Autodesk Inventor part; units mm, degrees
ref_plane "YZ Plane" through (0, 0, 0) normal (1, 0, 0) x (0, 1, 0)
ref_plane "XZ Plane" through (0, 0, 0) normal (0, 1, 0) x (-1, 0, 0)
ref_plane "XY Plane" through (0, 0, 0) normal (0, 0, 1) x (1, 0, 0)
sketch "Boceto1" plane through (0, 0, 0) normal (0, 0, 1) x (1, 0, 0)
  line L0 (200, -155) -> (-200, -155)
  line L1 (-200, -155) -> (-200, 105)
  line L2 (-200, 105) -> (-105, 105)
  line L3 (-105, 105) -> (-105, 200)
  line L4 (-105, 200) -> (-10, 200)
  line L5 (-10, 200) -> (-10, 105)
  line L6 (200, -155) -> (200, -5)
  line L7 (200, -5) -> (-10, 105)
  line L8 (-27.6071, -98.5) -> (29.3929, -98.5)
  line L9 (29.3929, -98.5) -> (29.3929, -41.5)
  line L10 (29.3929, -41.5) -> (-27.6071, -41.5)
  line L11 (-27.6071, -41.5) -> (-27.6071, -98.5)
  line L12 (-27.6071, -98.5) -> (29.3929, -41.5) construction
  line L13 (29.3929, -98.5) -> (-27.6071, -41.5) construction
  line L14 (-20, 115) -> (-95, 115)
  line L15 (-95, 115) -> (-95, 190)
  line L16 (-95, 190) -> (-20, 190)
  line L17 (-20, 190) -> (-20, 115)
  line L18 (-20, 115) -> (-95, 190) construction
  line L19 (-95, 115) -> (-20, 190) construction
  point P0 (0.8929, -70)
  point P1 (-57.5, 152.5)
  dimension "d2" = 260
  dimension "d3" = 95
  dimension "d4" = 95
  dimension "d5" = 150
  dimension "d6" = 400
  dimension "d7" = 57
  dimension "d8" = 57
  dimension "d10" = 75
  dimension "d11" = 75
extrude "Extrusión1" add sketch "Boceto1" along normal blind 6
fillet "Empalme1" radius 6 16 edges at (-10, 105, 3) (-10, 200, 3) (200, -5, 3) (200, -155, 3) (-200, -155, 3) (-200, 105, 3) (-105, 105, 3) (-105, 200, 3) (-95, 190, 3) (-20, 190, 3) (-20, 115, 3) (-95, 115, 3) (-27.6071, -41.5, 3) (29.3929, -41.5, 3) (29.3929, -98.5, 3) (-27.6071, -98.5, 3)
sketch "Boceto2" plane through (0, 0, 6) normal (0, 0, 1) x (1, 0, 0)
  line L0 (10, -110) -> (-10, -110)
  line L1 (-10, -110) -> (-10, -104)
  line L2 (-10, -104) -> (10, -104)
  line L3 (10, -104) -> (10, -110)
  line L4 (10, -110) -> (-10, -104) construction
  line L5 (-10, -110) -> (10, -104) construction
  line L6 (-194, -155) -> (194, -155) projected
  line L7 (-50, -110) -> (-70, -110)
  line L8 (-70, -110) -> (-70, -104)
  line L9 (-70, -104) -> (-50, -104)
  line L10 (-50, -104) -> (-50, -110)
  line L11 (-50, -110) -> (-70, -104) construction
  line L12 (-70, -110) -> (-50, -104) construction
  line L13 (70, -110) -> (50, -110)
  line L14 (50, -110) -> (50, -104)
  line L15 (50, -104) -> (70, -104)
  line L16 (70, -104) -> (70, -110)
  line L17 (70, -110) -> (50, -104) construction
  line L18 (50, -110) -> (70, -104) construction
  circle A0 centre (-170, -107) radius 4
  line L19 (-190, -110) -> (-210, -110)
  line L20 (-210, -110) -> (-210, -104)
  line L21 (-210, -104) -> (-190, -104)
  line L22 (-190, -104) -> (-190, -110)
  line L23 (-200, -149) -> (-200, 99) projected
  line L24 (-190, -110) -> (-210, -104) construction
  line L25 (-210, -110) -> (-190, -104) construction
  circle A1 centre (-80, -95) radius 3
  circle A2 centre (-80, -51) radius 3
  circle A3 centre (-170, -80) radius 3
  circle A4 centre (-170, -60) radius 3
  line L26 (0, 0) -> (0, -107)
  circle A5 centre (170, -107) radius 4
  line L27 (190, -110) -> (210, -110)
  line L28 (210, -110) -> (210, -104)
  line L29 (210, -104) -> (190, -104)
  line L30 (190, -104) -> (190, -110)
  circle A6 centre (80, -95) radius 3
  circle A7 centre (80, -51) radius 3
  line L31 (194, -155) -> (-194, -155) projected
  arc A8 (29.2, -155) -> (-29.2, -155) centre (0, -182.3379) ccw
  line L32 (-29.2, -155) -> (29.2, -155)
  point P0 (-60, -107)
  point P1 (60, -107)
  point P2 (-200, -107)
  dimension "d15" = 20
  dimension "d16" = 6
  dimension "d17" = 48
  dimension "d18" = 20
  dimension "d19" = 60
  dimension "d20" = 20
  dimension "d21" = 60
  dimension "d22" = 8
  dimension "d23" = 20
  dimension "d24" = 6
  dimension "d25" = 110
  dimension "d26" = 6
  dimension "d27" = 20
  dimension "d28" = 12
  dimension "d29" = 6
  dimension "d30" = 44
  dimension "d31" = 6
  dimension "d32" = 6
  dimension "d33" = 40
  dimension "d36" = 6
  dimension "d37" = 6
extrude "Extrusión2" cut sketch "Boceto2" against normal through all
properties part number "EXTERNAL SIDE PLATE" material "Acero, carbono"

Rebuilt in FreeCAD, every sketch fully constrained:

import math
import FreeCAD as App
import Part
import Sketcher
from FreeCAD import Vector
Q = App.Units.Quantity


def edges_at(feature, points):
    """Names of the edges that pass closest to the given points."""
    edges = feature.Shape.Edges
    near = lambda p: min(range(len(edges)), key=lambda i: edges[i].distToShape(Part.Vertex(*p))[0])
    return sorted({f"Edge{near(p) + 1}" for p in points})


def add_polygon(sketch, points):
    """Adds a closed chain of lines whose ends are joined by coincident constraints."""
    first, n = sketch.GeometryCount, len(points)
    for a, b in zip(points, points[1:] + points[:1]):
        sketch.addGeometry(Part.LineSegment(App.Vector(*a, 0), App.Vector(*b, 0)), False)
    for i in range(n):
        sketch.addConstraint(Sketcher.Constraint("Coincident", first + i, 2, first + (i + 1) % n, 1))

doc = App.newDocument("Part")
body = doc.addObject("PartDesign::Body", "Body")

# Sketch on XY plane
sketch1 = doc.addObject("Sketcher::SketchObject", "Sketch")
body.addObject(sketch1)
sketch1.AttachmentSupport = (doc.XY_Plane, [""])
sketch1.MapMode = "FlatFace"
add_polygon(sketch1, [(-200, -155), (200, -155), (200, -5), (-10, 105), (-10, 200), (-105, 200), (-105, 105), (-200, 105)])  # lines 0-7
add_polygon(sketch1, [(29.3929, -98.5), (-27.6071, -98.5), (-27.6071, -41.5), (29.3929, -41.5)])  # lines 8-11
add_polygon(sketch1, [(-20, 190), (-20, 115), (-95, 115), (-95, 190)])  # lines 12-15
sketch1.addConstraint(Sketcher.Constraint("Horizontal", 0))
sketch1.addConstraint(Sketcher.Constraint("Vertical", 1))
sketch1.addConstraint(Sketcher.Constraint("Vertical", 3))
sketch1.addConstraint(Sketcher.Constraint("Horizontal", 4))
sketch1.addConstraint(Sketcher.Constraint("Vertical", 5))
sketch1.addConstraint(Sketcher.Constraint("Horizontal", 6))
sketch1.addConstraint(Sketcher.Constraint("Vertical", 7))
sketch1.addConstraint(Sketcher.Constraint("Horizontal", 8))
sketch1.addConstraint(Sketcher.Constraint("Vertical", 9))
sketch1.addConstraint(Sketcher.Constraint("Horizontal", 10))
sketch1.addConstraint(Sketcher.Constraint("Vertical", 11))
sketch1.addConstraint(Sketcher.Constraint("Vertical", 12))
sketch1.addConstraint(Sketcher.Constraint("Horizontal", 13))
sketch1.addConstraint(Sketcher.Constraint("Vertical", 14))
sketch1.addConstraint(Sketcher.Constraint("Horizontal", 15))
sketch1.addConstraint(Sketcher.Constraint("Horizontal", 2, 2, 5, 2))
sketch1.addConstraint(Sketcher.Constraint("Equal", 4, 6))
sketch1.addConstraint(Sketcher.Constraint("Equal", 6, 3))
sketch1.addConstraint(Sketcher.Constraint("Equal", 10, 9))
sketch1.addConstraint(Sketcher.Constraint("Equal", 15, 12))
sketch1.addConstraint(Sketcher.Constraint("DistanceX", 0, 1, 0, 2, Q("400 mm")))
sketch1.addConstraint(Sketcher.Constraint("DistanceX", 4, 2, 4, 1, Q("95 mm")))
sketch1.addConstraint(Sketcher.Constraint("DistanceX", 8, 2, 8, 1, Q("57 mm")))
sketch1.addConstraint(Sketcher.Constraint("DistanceX", 13, 2, 13, 1, Q("75 mm")))
sketch1.addConstraint(Sketcher.Constraint("DistanceY", 1, 1, 1, 2, Q("150 mm")))
sketch1.addConstraint(Sketcher.Constraint("DistanceY", 7, 2, 7, 1, Q("260 mm")))
sketch1.addConstraint(Sketcher.Constraint("DistanceX", 13, 2, -1, 1, Q("95 mm")))
sketch1.addConstraint(Sketcher.Constraint("DistanceX", -1, 1, 0, 2, Q("200 mm")))
sketch1.addConstraint(Sketcher.Constraint("DistanceY", 0, 2, -1, 1, Q("155 mm")))
sketch1.addConstraint(Sketcher.Constraint("DistanceY", -1, 1, 12, 2, Q("115 mm")))
sketch1.addConstraint(Sketcher.Constraint("DistanceY", 8, 2, -1, 1, Q("98.5 mm")))
sketch1.addConstraint(Sketcher.Constraint("DistanceX", 8, 2, -1, 1, Q("27.607 mm")))
pad1 = doc.addObject("PartDesign::Pad", "Pad")
body.addObject(pad1)
pad1.Profile = sketch1
pad1.Length = 6
doc.recompute()

fillet = doc.addObject("PartDesign::Fillet", "Fillet")
body.addObject(fillet)
fillet.Base = (pad1, edges_at(pad1, [
    (-10, 105, 3),
    (-10, 200, 3),
    (200, -5, 3),
    (200, -155, 3),
    (-200, -155, 3),
    (-200, 105, 3),
    (-105, 105, 3),
    (-105, 200, 3),
    (-95, 190, 3),
    (-20, 190, 3),
    (-20, 115, 3),
    (-95, 115, 3),
    (-27.607, -41.5, 3),
    (29.393, -41.5, 3),
    (29.393, -98.5, 3),
    (-27.607, -98.5, 3),
]))
fillet.Radius = 6

# Sketch on XY plane
sketch2 = doc.addObject("Sketcher::SketchObject", "Sketch001")
body.addObject(sketch2)
sketch2.AttachmentSupport = (doc.XY_Plane, [""])
sketch2.MapMode = "FlatFace"
sketch2.AttachmentOffset = App.Placement(Vector(0, 0, 6), App.Rotation())
add_polygon(sketch2, [(-10, -110), (10, -110), (10, -104), (-10, -104)])  # lines 0-3
sketch2.addGeometry(Part.ArcOfCircle(Part.Circle(Vector(0, -182.3379, 0), Vector(0, 0, 1), 40.00001), math.radians(43.113621), math.radians(136.886379)), False)  # 4
sketch2.addGeometry(Part.LineSegment(Vector(-29.2, -155, 0), Vector(29.2, -155, 0)), False)  # 5
add_polygon(sketch2, [(-70, -110), (-50, -110), (-50, -104), (-70, -104)])  # lines 6-9
add_polygon(sketch2, [(50, -110), (70, -110), (70, -104), (50, -104)])  # lines 10-13
sketch2.addGeometry(Part.Circle(Vector(-170, -107, 0), Vector(0, 0, 1), 4), False)  # 14
add_polygon(sketch2, [(-190, -110), (-190, -104), (-210, -104), (-210, -110)])  # lines 15-18
sketch2.addGeometry(Part.Circle(Vector(-80, -95, 0), Vector(0, 0, 1), 3), False)  # 19
sketch2.addGeometry(Part.Circle(Vector(-80, -51, 0), Vector(0, 0, 1), 3), False)  # 20
sketch2.addGeometry(Part.Circle(Vector(-170, -80, 0), Vector(0, 0, 1), 3), False)  # 21
sketch2.addGeometry(Part.Circle(Vector(-170, -60, 0), Vector(0, 0, 1), 3), False)  # 22
sketch2.addGeometry(Part.Circle(Vector(170, -107, 0), Vector(0, 0, 1), 4), False)  # 23
add_polygon(sketch2, [(190, -104), (190, -110), (210, -110), (210, -104)])  # lines 24-27
sketch2.addGeometry(Part.Circle(Vector(80, -95, 0), Vector(0, 0, 1), 3), False)  # 28
sketch2.addGeometry(Part.Circle(Vector(80, -51, 0), Vector(0, 0, 1), 3), False)  # 29
sketch2.addConstraint(Sketcher.Constraint("Coincident", 4, 1, 5, 2))
sketch2.addConstraint(Sketcher.Constraint("Coincident", 5, 1, 4, 2))
sketch2.addConstraint(Sketcher.Constraint("Horizontal", 0))
sketch2.addConstraint(Sketcher.Constraint("Vertical", 1))
sketch2.addConstraint(Sketcher.Constraint("Horizontal", 2))
sketch2.addConstraint(Sketcher.Constraint("Vertical", 3))
sketch2.addConstraint(Sketcher.Constraint("Horizontal", 5))
sketch2.addConstraint(Sketcher.Constraint("Horizontal", 6))
sketch2.addConstraint(Sketcher.Constraint("Vertical", 7))
sketch2.addConstraint(Sketcher.Constraint("Horizontal", 8))
sketch2.addConstraint(Sketcher.Constraint("Vertical", 9))
sketch2.addConstraint(Sketcher.Constraint("Horizontal", 10))
sketch2.addConstraint(Sketcher.Constraint("Vertical", 11))
sketch2.addConstraint(Sketcher.Constraint("Horizontal", 12))
sketch2.addConstraint(Sketcher.Constraint("Vertical", 13))
sketch2.addConstraint(Sketcher.Constraint("Vertical", 15))
sketch2.addConstraint(Sketcher.Constraint("Horizontal", 16))
sketch2.addConstraint(Sketcher.Constraint("Vertical", 17))
sketch2.addConstraint(Sketcher.Constraint("Horizontal", 18))
sketch2.addConstraint(Sketcher.Constraint("Vertical", 24))
sketch2.addConstraint(Sketcher.Constraint("Horizontal", 25))
sketch2.addConstraint(Sketcher.Constraint("Vertical", 26))
sketch2.addConstraint(Sketcher.Constraint("Horizontal", 27))
sketch2.addConstraint(Sketcher.Constraint("Equal", 19, 20))
sketch2.addConstraint(Sketcher.Constraint("Equal", 20, 21))
sketch2.addConstraint(Sketcher.Constraint("Equal", 21, 22))
sketch2.addConstraint(Sketcher.Constraint("Equal", 14, 23))
sketch2.addConstraint(Sketcher.Constraint("Equal", 22, 28))
sketch2.addConstraint(Sketcher.Constraint("Equal", 28, 29))
sketch2.addConstraint(Sketcher.Constraint("Symmetric", 14, 3, 23, 3, -2))
sketch2.addConstraint(Sketcher.Constraint("Symmetric", 19, 3, 28, 3, -2))
sketch2.addConstraint(Sketcher.Constraint("Symmetric", 20, 3, 29, 3, -2))
sketch2.addConstraint(Sketcher.Constraint("Symmetric", 9, 2, 10, 2, -2))
sketch2.addConstraint(Sketcher.Constraint("Symmetric", 7, 2, 12, 2, -2))
sketch2.addConstraint(Sketcher.Constraint("Symmetric", 18, 2, 24, 2, -2))
sketch2.addConstraint(Sketcher.Constraint("Symmetric", 16, 2, 26, 2, -2))
sketch2.addConstraint(Sketcher.Constraint("PointOnObject", 4, 3, -2))
sketch2.addConstraint(Sketcher.Constraint("Horizontal", 3, 2, 6, 2))
sketch2.addConstraint(Sketcher.Constraint("Horizontal", 2, 2, 7, 2))
sketch2.addConstraint(Sketcher.Constraint("Horizontal", 12, 2, 15, 2))
sketch2.addConstraint(Sketcher.Constraint("Horizontal", 13, 2, 17, 2))
sketch2.addConstraint(Sketcher.Constraint("Vertical", 19, 3, 20, 3))
sketch2.addConstraint(Sketcher.Constraint("Vertical", 14, 3, 21, 3))
sketch2.addConstraint(Sketcher.Constraint("Vertical", 21, 3, 22, 3))
sketch2.addConstraint(Sketcher.Constraint("Equal", 2, 6))
sketch2.addConstraint(Sketcher.Constraint("Equal", 12, 16))
sketch2.addConstraint(Sketcher.Constraint("Diameter", 14, Q("8 mm")))
sketch2.addConstraint(Sketcher.Constraint("Diameter", 19, Q("6 mm")))
sketch2.addConstraint(Sketcher.Constraint("Radius", 4, Q("40 mm")))
sketch2.addConstraint(Sketcher.Constraint("DistanceX", 0, 1, 0, 2, Q("20 mm")))
sketch2.addConstraint(Sketcher.Constraint("DistanceY", 1, 1, 1, 2, Q("6 mm")))
sketch2.addConstraint(Sketcher.Constraint("DistanceY", 22, 3, -1, 1, Q("60 mm")))
sketch2.addConstraint(Sketcher.Constraint("DistanceY", 0, 2, -1, 1, Q("110 mm")))
sketch2.addConstraint(Sketcher.Constraint("DistanceY", 14, 3, 19, 3, Q("12 mm")))
sketch2.addConstraint(Sketcher.Constraint("DistanceY", 19, 3, 20, 3, Q("44 mm")))
sketch2.addConstraint(Sketcher.Constraint("DistanceY", 21, 3, 22, 3, Q("20 mm")))
sketch2.addConstraint(Sketcher.Constraint("DistanceX", 6, 2, 3, 2, Q("40 mm")))
sketch2.addConstraint(Sketcher.Constraint("DistanceX", 0, 2, 10, 2, Q("60 mm")))
sketch2.addConstraint(Sketcher.Constraint("DistanceX", 15, 2, 14, 3, Q("20 mm")))
sketch2.addConstraint(Sketcher.Constraint("DistanceX", 15, 2, 19, 3, Q("110 mm")))
sketch2.addConstraint(Sketcher.Constraint("DistanceX", 5, 1, 5, 2, Q("58.4 mm")))
sketch2.addConstraint(Sketcher.Constraint("DistanceX", 14, 3, -1, 1, Q("170 mm")))
sketch2.addConstraint(Sketcher.Constraint("DistanceY", 14, 3, -1, 1, Q("107 mm")))
sketch2.addConstraint(Sketcher.Constraint("DistanceY", 4, 1, -1, 1, Q("155 mm")))
pocket1 = doc.addObject("PartDesign::Pocket", "Pocket")
body.addObject(pocket1)
pocket1.Profile = sketch2
pocket1.Type = "ThroughAll"

doc.recompute()
